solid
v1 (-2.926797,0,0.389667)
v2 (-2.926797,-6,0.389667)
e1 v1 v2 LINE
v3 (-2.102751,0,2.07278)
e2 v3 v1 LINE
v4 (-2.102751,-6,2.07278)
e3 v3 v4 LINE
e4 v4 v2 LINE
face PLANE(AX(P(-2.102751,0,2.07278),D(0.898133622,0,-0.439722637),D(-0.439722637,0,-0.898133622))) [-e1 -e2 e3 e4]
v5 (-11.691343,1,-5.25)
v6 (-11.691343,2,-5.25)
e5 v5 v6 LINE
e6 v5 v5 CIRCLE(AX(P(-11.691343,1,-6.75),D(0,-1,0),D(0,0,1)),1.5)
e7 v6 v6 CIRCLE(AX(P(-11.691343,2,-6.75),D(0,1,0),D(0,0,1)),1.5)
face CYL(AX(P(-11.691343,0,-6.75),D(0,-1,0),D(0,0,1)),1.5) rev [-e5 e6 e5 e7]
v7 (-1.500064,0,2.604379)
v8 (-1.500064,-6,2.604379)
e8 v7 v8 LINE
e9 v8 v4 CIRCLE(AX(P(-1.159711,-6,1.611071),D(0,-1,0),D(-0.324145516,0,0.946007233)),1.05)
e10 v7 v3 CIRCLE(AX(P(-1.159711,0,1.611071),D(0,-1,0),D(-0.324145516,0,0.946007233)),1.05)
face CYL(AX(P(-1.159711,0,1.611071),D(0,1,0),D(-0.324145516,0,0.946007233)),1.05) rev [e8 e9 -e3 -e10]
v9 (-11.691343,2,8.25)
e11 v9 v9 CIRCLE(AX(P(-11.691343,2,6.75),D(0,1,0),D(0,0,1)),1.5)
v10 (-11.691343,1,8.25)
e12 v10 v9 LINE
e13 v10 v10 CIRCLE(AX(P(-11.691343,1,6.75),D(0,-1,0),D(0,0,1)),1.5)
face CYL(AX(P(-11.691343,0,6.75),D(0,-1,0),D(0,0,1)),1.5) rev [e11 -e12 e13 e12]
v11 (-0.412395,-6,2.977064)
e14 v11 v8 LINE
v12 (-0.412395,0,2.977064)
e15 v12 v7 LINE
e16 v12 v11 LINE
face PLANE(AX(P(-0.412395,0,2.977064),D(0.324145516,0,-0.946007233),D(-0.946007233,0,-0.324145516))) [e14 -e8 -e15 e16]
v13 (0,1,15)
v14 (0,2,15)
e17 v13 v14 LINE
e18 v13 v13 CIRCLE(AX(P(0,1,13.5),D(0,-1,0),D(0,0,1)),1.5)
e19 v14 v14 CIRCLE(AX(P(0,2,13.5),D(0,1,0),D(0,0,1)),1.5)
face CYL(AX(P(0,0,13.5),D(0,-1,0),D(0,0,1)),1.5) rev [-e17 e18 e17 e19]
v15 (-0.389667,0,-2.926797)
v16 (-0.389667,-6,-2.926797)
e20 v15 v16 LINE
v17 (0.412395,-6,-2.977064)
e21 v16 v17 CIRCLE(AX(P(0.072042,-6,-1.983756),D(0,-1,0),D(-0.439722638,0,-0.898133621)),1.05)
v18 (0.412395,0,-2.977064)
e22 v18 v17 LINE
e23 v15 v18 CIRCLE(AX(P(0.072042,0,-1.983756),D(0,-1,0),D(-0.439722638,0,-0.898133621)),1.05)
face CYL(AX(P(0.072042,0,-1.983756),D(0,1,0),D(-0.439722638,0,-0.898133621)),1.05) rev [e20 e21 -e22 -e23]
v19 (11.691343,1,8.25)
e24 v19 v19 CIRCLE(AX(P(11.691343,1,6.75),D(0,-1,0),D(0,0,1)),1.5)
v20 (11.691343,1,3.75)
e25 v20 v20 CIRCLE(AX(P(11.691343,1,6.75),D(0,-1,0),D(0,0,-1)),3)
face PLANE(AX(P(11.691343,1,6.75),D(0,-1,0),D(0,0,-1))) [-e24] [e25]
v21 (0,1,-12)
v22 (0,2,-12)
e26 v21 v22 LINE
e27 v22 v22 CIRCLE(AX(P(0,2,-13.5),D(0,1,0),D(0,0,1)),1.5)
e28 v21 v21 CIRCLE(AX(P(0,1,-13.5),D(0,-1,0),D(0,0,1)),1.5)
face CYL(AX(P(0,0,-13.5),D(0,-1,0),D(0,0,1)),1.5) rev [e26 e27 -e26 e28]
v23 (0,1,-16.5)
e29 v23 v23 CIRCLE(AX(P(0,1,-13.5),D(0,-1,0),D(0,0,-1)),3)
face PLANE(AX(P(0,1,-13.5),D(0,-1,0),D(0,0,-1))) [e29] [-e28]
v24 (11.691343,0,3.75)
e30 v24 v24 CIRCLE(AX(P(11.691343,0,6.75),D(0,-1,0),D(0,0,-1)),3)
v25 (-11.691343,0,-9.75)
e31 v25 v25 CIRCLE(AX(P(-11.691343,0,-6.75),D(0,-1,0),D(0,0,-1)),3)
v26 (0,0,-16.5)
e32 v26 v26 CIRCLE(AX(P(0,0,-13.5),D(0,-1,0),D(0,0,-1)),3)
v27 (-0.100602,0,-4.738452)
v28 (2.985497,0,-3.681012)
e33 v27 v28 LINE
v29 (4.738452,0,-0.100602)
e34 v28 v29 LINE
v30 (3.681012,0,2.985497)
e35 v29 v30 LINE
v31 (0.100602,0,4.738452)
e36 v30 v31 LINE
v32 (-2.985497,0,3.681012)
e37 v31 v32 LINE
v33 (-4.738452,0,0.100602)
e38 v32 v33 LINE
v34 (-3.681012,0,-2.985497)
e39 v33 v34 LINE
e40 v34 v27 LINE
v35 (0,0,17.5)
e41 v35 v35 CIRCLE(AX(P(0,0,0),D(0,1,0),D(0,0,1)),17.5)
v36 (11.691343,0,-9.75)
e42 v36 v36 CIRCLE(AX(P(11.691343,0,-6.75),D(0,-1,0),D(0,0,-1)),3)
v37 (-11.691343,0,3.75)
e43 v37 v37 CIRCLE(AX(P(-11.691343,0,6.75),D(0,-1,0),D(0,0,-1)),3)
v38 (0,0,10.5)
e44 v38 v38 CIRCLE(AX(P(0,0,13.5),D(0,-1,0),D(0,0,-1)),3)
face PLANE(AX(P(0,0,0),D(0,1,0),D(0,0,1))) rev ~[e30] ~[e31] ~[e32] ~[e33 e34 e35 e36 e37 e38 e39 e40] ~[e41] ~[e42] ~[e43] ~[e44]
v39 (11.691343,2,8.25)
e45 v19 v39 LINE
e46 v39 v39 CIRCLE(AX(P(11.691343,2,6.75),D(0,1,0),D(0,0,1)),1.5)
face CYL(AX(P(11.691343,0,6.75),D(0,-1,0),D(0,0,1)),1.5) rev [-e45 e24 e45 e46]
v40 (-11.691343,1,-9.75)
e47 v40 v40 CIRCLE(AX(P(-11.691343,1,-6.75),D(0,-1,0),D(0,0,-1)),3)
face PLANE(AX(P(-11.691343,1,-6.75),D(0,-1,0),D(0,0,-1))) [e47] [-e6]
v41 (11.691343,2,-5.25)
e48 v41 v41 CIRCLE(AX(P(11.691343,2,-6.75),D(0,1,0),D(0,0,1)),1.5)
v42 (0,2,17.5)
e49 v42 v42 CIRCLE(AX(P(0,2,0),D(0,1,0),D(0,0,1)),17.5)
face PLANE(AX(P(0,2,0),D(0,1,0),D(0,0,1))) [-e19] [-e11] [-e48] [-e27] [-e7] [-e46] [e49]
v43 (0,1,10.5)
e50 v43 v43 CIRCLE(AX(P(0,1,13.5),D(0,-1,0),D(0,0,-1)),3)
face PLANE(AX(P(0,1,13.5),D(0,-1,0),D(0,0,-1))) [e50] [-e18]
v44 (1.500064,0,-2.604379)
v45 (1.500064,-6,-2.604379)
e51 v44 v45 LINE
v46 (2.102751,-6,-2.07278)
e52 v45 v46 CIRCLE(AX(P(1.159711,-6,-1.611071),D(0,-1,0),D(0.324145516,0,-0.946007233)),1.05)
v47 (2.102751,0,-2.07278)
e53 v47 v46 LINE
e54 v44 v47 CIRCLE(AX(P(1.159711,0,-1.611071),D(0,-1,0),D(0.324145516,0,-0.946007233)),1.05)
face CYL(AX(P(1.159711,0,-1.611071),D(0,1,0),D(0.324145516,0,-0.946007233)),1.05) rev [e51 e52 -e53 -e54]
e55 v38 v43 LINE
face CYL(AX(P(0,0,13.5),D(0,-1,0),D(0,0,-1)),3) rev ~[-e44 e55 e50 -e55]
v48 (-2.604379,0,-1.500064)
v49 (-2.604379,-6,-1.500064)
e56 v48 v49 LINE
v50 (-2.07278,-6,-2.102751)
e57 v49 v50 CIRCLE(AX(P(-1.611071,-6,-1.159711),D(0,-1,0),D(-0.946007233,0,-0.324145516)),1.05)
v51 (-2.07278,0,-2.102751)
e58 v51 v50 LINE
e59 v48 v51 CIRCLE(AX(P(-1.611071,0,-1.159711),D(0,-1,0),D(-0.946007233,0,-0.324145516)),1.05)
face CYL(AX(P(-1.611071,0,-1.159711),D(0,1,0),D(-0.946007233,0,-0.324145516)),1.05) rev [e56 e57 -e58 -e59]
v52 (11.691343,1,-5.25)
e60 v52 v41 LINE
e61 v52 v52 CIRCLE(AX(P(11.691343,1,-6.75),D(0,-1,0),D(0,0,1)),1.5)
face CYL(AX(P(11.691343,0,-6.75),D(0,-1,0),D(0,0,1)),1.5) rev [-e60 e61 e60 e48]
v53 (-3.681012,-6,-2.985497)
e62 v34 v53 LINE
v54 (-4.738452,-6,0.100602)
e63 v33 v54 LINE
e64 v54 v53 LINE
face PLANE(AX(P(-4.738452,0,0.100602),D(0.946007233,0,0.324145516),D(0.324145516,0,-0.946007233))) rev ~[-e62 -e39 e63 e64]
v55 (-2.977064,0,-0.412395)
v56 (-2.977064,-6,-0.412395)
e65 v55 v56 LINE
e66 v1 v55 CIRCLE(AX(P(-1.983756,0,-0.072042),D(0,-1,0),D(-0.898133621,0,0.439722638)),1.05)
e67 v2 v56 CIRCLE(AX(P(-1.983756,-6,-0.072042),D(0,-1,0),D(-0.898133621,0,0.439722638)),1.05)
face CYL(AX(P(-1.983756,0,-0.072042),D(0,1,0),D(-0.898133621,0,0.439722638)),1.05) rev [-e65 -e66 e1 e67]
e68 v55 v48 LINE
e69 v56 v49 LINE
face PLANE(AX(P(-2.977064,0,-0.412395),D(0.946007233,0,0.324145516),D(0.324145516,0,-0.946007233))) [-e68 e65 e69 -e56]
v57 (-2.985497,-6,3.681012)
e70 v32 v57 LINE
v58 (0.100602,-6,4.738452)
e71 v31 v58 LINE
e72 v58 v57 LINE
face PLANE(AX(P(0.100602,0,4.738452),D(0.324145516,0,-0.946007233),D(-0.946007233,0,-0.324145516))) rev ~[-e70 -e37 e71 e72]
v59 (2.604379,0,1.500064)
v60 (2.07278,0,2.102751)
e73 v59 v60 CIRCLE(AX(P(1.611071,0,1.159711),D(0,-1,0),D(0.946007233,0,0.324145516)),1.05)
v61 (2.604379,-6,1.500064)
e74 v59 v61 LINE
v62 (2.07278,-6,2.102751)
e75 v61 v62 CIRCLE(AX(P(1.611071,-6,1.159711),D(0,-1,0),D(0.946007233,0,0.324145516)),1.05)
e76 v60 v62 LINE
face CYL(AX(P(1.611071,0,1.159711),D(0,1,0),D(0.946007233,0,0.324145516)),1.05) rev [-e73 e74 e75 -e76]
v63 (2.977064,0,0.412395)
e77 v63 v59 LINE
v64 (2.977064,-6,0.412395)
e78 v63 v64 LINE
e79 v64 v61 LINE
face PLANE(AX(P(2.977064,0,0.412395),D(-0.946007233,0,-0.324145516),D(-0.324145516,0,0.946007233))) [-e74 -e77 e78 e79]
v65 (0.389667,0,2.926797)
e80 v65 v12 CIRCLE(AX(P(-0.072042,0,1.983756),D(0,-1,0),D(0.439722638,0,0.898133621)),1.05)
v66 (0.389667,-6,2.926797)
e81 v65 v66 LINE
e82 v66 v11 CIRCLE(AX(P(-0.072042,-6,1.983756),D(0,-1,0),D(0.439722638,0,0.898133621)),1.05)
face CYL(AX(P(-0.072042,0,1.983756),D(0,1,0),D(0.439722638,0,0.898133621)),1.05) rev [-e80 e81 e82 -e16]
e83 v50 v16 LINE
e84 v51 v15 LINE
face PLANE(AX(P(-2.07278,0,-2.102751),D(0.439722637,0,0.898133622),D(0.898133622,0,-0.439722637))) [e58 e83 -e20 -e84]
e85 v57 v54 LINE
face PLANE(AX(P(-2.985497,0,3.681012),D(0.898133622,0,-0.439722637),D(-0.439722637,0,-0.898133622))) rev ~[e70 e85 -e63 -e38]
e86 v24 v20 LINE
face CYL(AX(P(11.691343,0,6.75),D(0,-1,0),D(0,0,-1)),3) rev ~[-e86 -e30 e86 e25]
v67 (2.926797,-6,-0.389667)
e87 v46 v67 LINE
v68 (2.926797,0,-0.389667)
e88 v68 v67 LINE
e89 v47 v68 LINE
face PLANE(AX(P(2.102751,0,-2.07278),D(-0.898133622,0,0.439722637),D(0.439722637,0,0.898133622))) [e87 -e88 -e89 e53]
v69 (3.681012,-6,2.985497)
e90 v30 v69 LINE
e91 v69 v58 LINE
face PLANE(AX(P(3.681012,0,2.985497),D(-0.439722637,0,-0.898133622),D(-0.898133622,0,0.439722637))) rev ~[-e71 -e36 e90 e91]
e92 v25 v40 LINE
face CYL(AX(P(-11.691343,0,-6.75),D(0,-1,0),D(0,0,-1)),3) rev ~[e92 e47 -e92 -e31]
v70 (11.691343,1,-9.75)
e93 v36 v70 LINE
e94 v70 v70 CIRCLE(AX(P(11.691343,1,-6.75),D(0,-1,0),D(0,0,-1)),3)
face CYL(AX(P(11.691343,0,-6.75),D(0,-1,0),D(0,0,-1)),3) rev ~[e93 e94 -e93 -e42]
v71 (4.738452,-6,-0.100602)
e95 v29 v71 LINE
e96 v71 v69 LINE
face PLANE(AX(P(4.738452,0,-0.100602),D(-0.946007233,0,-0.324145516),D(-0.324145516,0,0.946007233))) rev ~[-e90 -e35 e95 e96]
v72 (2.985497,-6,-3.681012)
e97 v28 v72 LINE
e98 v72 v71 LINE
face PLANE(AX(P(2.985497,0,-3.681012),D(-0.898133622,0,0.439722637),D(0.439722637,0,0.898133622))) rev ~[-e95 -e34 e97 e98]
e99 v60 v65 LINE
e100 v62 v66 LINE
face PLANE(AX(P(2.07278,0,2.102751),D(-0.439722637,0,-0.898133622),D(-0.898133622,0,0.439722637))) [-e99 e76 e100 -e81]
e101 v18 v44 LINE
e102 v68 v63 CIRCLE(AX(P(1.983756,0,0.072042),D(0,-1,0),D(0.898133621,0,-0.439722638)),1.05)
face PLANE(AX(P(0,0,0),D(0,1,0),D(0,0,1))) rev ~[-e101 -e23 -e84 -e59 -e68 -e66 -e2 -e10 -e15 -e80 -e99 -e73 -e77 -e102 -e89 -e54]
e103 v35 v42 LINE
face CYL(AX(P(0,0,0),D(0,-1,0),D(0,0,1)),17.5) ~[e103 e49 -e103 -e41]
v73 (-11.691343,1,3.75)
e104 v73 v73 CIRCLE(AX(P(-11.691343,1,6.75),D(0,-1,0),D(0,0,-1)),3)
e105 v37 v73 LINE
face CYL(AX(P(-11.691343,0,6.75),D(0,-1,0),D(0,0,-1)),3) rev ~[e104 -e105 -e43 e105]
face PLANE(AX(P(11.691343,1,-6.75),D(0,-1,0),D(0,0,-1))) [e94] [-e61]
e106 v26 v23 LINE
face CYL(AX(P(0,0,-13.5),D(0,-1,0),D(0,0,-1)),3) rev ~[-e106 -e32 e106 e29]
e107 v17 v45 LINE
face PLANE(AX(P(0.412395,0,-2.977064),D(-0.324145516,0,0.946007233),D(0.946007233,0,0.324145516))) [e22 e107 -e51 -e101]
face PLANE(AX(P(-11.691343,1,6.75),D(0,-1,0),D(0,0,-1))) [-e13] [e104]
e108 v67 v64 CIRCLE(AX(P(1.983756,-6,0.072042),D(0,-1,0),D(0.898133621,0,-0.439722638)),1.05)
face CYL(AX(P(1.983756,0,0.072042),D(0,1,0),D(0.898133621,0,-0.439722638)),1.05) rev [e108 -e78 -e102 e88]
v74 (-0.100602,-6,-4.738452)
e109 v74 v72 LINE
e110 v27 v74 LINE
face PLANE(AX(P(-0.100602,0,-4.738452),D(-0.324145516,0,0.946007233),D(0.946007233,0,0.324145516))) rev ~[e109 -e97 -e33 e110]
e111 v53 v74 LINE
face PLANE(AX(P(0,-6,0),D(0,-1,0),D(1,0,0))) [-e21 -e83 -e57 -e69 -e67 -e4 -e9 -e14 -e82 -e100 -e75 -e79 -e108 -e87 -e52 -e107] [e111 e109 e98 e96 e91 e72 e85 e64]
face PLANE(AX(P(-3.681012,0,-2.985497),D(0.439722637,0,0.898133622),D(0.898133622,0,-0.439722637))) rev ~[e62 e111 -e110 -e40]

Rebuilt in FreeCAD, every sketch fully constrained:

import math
import FreeCAD as App
import Part
import Sketcher

V = App.Vector
Q = App.Units.Quantity

doc = App.newDocument("Part")
params = doc.addObject("Spreadsheet::Sheet", "Params")
for row, (alias, value) in enumerate([
    ("sketch1_diameter", "35 mm"),
    ("sketch1_diameter2", "3 mm"),
    ("pad1_length", "2 mm"),
    ("sketch2_radius", "1.05 mm"),
    ("pad2_length", "6 mm"),
    ("sketch3_diameter", "6 mm"),
    ("pocket1_length", "1 mm"),
], start=1):
    params.set(f"A{row}", alias)
    params.set(f"B{row}", "=" + value)
    params.setAlias(f"B{row}", alias)

body = doc.addObject("PartDesign::Body", "Body")

# Sketch on XZ plane
sketch1 = doc.addObject("Sketcher::SketchObject", "Sketch")
body.addObject(sketch1)
sketch1.AttachmentSupport = (doc.XZ_Plane, [""])
sketch1.MapMode = "FlatFace"
sketch1.addGeometry(Part.Circle(V(0, 0, 0), V(0, 0, 1), 17.5), False)
sketch1.addGeometry(Part.Circle(V(-11.7, -6.8, 0), V(0, 0, 1), 1.5), False)
sketch1.addGeometry(Part.Circle(V(0, -13.5, 0), V(0, 0, 1), 1.5), False)
sketch1.addGeometry(Part.Circle(V(-11.7, 6.8, 0), V(0, 0, 1), 1.5), False)
sketch1.addGeometry(Part.Circle(V(11.7, -6.8, 0), V(0, 0, 1), 1.5), False)
sketch1.addGeometry(Part.Circle(V(0, 13.5, 0), V(0, 0, 1), 1.5), False)
sketch1.addGeometry(Part.Circle(V(11.7, 6.8, 0), V(0, 0, 1), 1.5), False)
sketch1.addConstraint(Sketcher.Constraint("Coincident", 0, 3, -1, 1))
sketch1.addConstraint(Sketcher.Constraint("Equal", 1, 2))
sketch1.addConstraint(Sketcher.Constraint("Equal", 2, 3))
sketch1.addConstraint(Sketcher.Constraint("Equal", 3, 4))
sketch1.addConstraint(Sketcher.Constraint("Equal", 4, 5))
sketch1.addConstraint(Sketcher.Constraint("Equal", 5, 6))
sketch1.addConstraint(Sketcher.Constraint("Symmetric", 3, 3, 4, 3, -1, 1))
sketch1.addConstraint(Sketcher.Constraint("Symmetric", 2, 3, 5, 3, -1, 1))
sketch1.addConstraint(Sketcher.Constraint("Symmetric", 1, 3, 6, 3, -1, 1))
sketch1.addConstraint(Sketcher.Constraint("Symmetric", 1, 3, 4, 3, -2))
sketch1.addConstraint(Sketcher.Constraint("PointOnObject", 2, 3, -2))
sketch1.addConstraint(Sketcher.Constraint("Diameter", 0, Q("35 mm")))
sketch1.addConstraint(Sketcher.Constraint("Diameter", 1, Q("3 mm")))
sketch1.addConstraint(Sketcher.Constraint("DistanceY", 2, 3, 5, 3, Q("27 mm")))
sketch1.addConstraint(Sketcher.Constraint("DistanceY", 1, 3, 3, 3, Q("13.5 mm")))
sketch1.addConstraint(Sketcher.Constraint("DistanceX", 1, 3, -1, 1, Q("11.691343 mm")))
sketch1.setExpression("Constraints[11]", "Params.sketch1_diameter")
sketch1.setExpression("Constraints[12]", "Params.sketch1_diameter2")
pad1 = doc.addObject("PartDesign::Pad", "Pad")
body.addObject(pad1)
pad1.Profile = sketch1
pad1.setExpression("Length", "Params.pad1_length")
pad1.Reversed = True

# Sketch on XZ plane
sketch2 = doc.addObject("Sketcher::SketchObject", "Sketch001")
body.addObject(sketch2)
sketch2.AttachmentSupport = (doc.XZ_Plane, [""])
sketch2.MapMode = "FlatFace"
sketch2.addGeometry(Part.LineSegment(V(-3, 3.7, 0), V(-4.7, 0.1, 0)), False)
sketch2.addGeometry(Part.LineSegment(V(-4.7, 0.1, 0), V(-3.7, -3, 0)), False)
sketch2.addGeometry(Part.LineSegment(V(-3.7, -3, 0), V(-0.1, -4.7, 0)), False)
sketch2.addGeometry(Part.LineSegment(V(-0.1, -4.7, 0), V(3, -3.7, 0)), False)
sketch2.addGeometry(Part.LineSegment(V(3, -3.7, 0), V(4.7, -0.1, 0)), False)
sketch2.addGeometry(Part.LineSegment(V(4.7, -0.1, 0), V(3.7, 3, 0)), False)
sketch2.addGeometry(Part.LineSegment(V(3.7, 3, 0), V(0.1, 4.7, 0)), False)
sketch2.addGeometry(Part.LineSegment(V(0.1, 4.7, 0), V(-3, 3.7, 0)), False)
sketch2.addGeometry(Part.LineSegment(V(-1.5, 2.6, 0), V(-0.4, 3, 0)), False)
sketch2.addGeometry(Part.ArcOfCircle(Part.Circle(V(-0.1, 2, 0), V(0, 0, 1), 1), math.radians(64), math.radians(109)), False)
sketch2.addGeometry(Part.LineSegment(V(0.4, 2.9, 0), V(2.1, 2.1, 0)), False)
sketch2.addGeometry(Part.ArcOfCircle(Part.Circle(V(1.6, 1.2, 0), V(0, 0, 1), 1), math.radians(19), math.radians(64)), False)
sketch2.addGeometry(Part.LineSegment(V(2.6, 1.5, 0), V(3, 0.4, 0)), False)
sketch2.addGeometry(Part.ArcOfCircle(Part.Circle(V(2, 0.1, 0), V(0, 0, 1), 1), math.radians(-26), math.radians(19)), False)
sketch2.addGeometry(Part.LineSegment(V(2.9, -0.4, 0), V(2.1, -2.1, 0)), False)
sketch2.addGeometry(Part.ArcOfCircle(Part.Circle(V(1.2, -1.6, 0), V(0, 0, 1), 1), math.radians(-71), math.radians(-26)), False)
sketch2.addGeometry(Part.LineSegment(V(1.5, -2.6, 0), V(0.4, -3, 0)), False)
sketch2.addGeometry(Part.ArcOfCircle(Part.Circle(V(0.1, -2, 0), V(0, 0, 1), 1), math.radians(-116), math.radians(-71)), False)
sketch2.addGeometry(Part.LineSegment(V(-0.4, -2.9, 0), V(-2.1, -2.1, 0)), False)
sketch2.addGeometry(Part.ArcOfCircle(Part.Circle(V(-1.6, -1.2, 0), V(0, 0, 1), 1), math.radians(-161), math.radians(-116)), False)
sketch2.addGeometry(Part.LineSegment(V(-2.6, -1.5, 0), V(-3, -0.4, 0)), False)
sketch2.addGeometry(Part.ArcOfCircle(Part.Circle(V(-2, -0.1, 0), V(0, 0, 1), 1), math.radians(154), math.radians(199)), False)
sketch2.addGeometry(Part.LineSegment(V(-2.9, 0.4, 0), V(-2.1, 2.1, 0)), False)
sketch2.addGeometry(Part.ArcOfCircle(Part.Circle(V(-1.2, 1.6, 0), V(0, 0, 1), 1), math.radians(109), math.radians(154)), False)
sketch2.addConstraint(Sketcher.Constraint("Coincident", 0, 2, 1, 1))
sketch2.addConstraint(Sketcher.Constraint("Coincident", 1, 2, 2, 1))
sketch2.addConstraint(Sketcher.Constraint("Coincident", 2, 2, 3, 1))
sketch2.addConstraint(Sketcher.Constraint("Coincident", 3, 2, 4, 1))
sketch2.addConstraint(Sketcher.Constraint("Coincident", 4, 2, 5, 1))
sketch2.addConstraint(Sketcher.Constraint("Coincident", 5, 2, 6, 1))
sketch2.addConstraint(Sketcher.Constraint("Coincident", 6, 2, 7, 1))
sketch2.addConstraint(Sketcher.Constraint("Coincident", 7, 2, 0, 1))
sketch2.addConstraint(Sketcher.Constraint("Tangent", 8, 2, 9, 2))
sketch2.addConstraint(Sketcher.Constraint("Tangent", 9, 1, 10, 1))
sketch2.addConstraint(Sketcher.Constraint("Tangent", 10, 2, 11, 2))
sketch2.addConstraint(Sketcher.Constraint("Tangent", 11, 1, 12, 1))
sketch2.addConstraint(Sketcher.Constraint("Tangent", 12, 2, 13, 2))
sketch2.addConstraint(Sketcher.Constraint("Tangent", 13, 1, 14, 1))
sketch2.addConstraint(Sketcher.Constraint("Tangent", 14, 2, 15, 2))
sketch2.addConstraint(Sketcher.Constraint("Tangent", 15, 1, 16, 1))
sketch2.addConstraint(Sketcher.Constraint("Tangent", 16, 2, 17, 2))
sketch2.addConstraint(Sketcher.Constraint("Tangent", 17, 1, 18, 1))
sketch2.addConstraint(Sketcher.Constraint("Tangent", 18, 2, 19, 2))
sketch2.addConstraint(Sketcher.Constraint("Tangent", 19, 1, 20, 1))
sketch2.addConstraint(Sketcher.Constraint("Tangent", 20, 2, 21, 2))
sketch2.addConstraint(Sketcher.Constraint("Tangent", 21, 1, 22, 1))
sketch2.addConstraint(Sketcher.Constraint("Tangent", 22, 2, 23, 2))
sketch2.addConstraint(Sketcher.Constraint("Tangent", 23, 1, 8, 1))
sketch2.addConstraint(Sketcher.Constraint("Equal", 9, 11))
sketch2.addConstraint(Sketcher.Constraint("Equal", 11, 13))
sketch2.addConstraint(Sketcher.Constraint("Equal", 13, 15))
sketch2.addConstraint(Sketcher.Constraint("Equal", 15, 17))
sketch2.addConstraint(Sketcher.Constraint("Equal", 17, 19))
sketch2.addConstraint(Sketcher.Constraint("Equal", 19, 21))
sketch2.addConstraint(Sketcher.Constraint("Equal", 21, 23))
sketch2.addConstraint(Sketcher.Constraint("Symmetric", 9, 3, 17, 3, -1, 1))
sketch2.addConstraint(Sketcher.Constraint("Symmetric", 11, 3, 19, 3, -1, 1))
sketch2.addConstraint(Sketcher.Constraint("Symmetric", 13, 3, 21, 3, -1, 1))
sketch2.addConstraint(Sketcher.Constraint("Symmetric", 15, 3, 23, 3, -1, 1))
sketch2.addConstraint(Sketcher.Constraint("Symmetric", 0, 2, 4, 2, -1, 1))
sketch2.addConstraint(Sketcher.Constraint("Symmetric", 1, 2, 5, 2, -1, 1))
sketch2.addConstraint(Sketcher.Constraint("Symmetric", 2, 2, 6, 2, -1, 1))
sketch2.addConstraint(Sketcher.Constraint("Symmetric", 3, 2, 7, 2, -1, 1))
sketch2.addConstraint(Sketcher.Constraint("Perpendicular", 0, 2))
sketch2.addConstraint(Sketcher.Constraint("Perpendicular", 1, 3))
sketch2.addConstraint(Sketcher.Constraint("Parallel", 7, 8))
sketch2.addConstraint(Sketcher.Constraint("Parallel", 6, 10))
sketch2.addConstraint(Sketcher.Constraint("Perpendicular", 8, 12))
sketch2.addConstraint(Sketcher.Constraint("Perpendicular", 10, 14))
sketch2.addConstraint(Sketcher.Constraint("Equal", 0, 2))
sketch2.addConstraint(Sketcher.Constraint("Equal", 1, 3))
sketch2.addConstraint(Sketcher.Constraint("Equal", 8, 12))
sketch2.addConstraint(Sketcher.Constraint("Equal", 10, 14))
sketch2.addConstraint(Sketcher.Constraint("Radius", 9, Q("1.05 mm")))
sketch2.addConstraint(Sketcher.Constraint("Distance", 0, Q("3.986501 mm")))
sketch2.addConstraint(Sketcher.Constraint("DistanceX", 9, 3, 13, 3, Q("2.055798 mm")))
sketch2.addConstraint(Sketcher.Constraint("DistanceY", 1, 2, 0, 2, Q("3.086099 mm")))
sketch2.addConstraint(Sketcher.Constraint("DistanceX", 10, 2, 11, 1, Q("0.531599 mm")))
sketch2.addConstraint(Sketcher.Constraint("Distance", 10, Q("1.874012 mm")))
sketch2.addConstraint(Sketcher.Constraint("DistanceX", 9, 3, -1, 1, Q("0.072042 mm")))
sketch2.setExpression("Constraints[49]", "Params.sketch2_radius")
pad2 = doc.addObject("PartDesign::Pad", "Pad001")
body.addObject(pad2)
pad2.Profile = sketch2
pad2.setExpression("Length", "Params.pad2_length")

# Sketch on XZ plane
sketch3 = doc.addObject("Sketcher::SketchObject", "Sketch002")
body.addObject(sketch3)
sketch3.AttachmentSupport = (doc.XZ_Plane, [""])
sketch3.MapMode = "FlatFace"
sketch3.addGeometry(Part.Circle(V(-11.7, 6.8, 0), V(0, 0, 1), 3), False)
sketch3.addGeometry(Part.Circle(V(0, 13.5, 0), V(0, 0, 1), 3), False)
sketch3.addGeometry(Part.Circle(V(11.7, 6.8, 0), V(0, 0, 1), 3), False)
sketch3.addGeometry(Part.Circle(V(11.7, -6.8, 0), V(0, 0, 1), 3), False)
sketch3.addGeometry(Part.Circle(V(0, -13.5, 0), V(0, 0, 1), 3), False)
sketch3.addGeometry(Part.Circle(V(-11.7, -6.8, 0), V(0, 0, 1), 3), False)
sketch3.addConstraint(Sketcher.Constraint("Equal", 0, 1))
sketch3.addConstraint(Sketcher.Constraint("Equal", 1, 2))
sketch3.addConstraint(Sketcher.Constraint("Equal", 2, 3))
sketch3.addConstraint(Sketcher.Constraint("Equal", 3, 4))
sketch3.addConstraint(Sketcher.Constraint("Equal", 4, 5))
sketch3.addConstraint(Sketcher.Constraint("Symmetric", 0, 3, 3, 3, -1, 1))
sketch3.addConstraint(Sketcher.Constraint("Symmetric", 1, 3, 4, 3, -1, 1))
sketch3.addConstraint(Sketcher.Constraint("Symmetric", 2, 3, 5, 3, -1, 1))
sketch3.addConstraint(Sketcher.Constraint("Symmetric", 0, 3, 2, 3, -2))
sketch3.addConstraint(Sketcher.Constraint("PointOnObject", 1, 3, -2))
sketch3.addConstraint(Sketcher.Constraint("Diameter", 0, Q("6 mm")))
sketch3.addConstraint(Sketcher.Constraint("DistanceY", 4, 3, 1, 3, Q("27 mm")))
sketch3.addConstraint(Sketcher.Constraint("DistanceY", 3, 3, 2, 3, Q("13.5 mm")))
sketch3.addConstraint(Sketcher.Constraint("DistanceX", 0, 3, -1, 1, Q("11.691343 mm")))
sketch3.setExpression("Constraints[10]", "Params.sketch3_diameter")
pocket1 = doc.addObject("PartDesign::Pocket", "Pocket")
body.addObject(pocket1)
pocket1.Profile = sketch3
pocket1.setExpression("Length", "Params.pocket1_length")

doc.recompute()
